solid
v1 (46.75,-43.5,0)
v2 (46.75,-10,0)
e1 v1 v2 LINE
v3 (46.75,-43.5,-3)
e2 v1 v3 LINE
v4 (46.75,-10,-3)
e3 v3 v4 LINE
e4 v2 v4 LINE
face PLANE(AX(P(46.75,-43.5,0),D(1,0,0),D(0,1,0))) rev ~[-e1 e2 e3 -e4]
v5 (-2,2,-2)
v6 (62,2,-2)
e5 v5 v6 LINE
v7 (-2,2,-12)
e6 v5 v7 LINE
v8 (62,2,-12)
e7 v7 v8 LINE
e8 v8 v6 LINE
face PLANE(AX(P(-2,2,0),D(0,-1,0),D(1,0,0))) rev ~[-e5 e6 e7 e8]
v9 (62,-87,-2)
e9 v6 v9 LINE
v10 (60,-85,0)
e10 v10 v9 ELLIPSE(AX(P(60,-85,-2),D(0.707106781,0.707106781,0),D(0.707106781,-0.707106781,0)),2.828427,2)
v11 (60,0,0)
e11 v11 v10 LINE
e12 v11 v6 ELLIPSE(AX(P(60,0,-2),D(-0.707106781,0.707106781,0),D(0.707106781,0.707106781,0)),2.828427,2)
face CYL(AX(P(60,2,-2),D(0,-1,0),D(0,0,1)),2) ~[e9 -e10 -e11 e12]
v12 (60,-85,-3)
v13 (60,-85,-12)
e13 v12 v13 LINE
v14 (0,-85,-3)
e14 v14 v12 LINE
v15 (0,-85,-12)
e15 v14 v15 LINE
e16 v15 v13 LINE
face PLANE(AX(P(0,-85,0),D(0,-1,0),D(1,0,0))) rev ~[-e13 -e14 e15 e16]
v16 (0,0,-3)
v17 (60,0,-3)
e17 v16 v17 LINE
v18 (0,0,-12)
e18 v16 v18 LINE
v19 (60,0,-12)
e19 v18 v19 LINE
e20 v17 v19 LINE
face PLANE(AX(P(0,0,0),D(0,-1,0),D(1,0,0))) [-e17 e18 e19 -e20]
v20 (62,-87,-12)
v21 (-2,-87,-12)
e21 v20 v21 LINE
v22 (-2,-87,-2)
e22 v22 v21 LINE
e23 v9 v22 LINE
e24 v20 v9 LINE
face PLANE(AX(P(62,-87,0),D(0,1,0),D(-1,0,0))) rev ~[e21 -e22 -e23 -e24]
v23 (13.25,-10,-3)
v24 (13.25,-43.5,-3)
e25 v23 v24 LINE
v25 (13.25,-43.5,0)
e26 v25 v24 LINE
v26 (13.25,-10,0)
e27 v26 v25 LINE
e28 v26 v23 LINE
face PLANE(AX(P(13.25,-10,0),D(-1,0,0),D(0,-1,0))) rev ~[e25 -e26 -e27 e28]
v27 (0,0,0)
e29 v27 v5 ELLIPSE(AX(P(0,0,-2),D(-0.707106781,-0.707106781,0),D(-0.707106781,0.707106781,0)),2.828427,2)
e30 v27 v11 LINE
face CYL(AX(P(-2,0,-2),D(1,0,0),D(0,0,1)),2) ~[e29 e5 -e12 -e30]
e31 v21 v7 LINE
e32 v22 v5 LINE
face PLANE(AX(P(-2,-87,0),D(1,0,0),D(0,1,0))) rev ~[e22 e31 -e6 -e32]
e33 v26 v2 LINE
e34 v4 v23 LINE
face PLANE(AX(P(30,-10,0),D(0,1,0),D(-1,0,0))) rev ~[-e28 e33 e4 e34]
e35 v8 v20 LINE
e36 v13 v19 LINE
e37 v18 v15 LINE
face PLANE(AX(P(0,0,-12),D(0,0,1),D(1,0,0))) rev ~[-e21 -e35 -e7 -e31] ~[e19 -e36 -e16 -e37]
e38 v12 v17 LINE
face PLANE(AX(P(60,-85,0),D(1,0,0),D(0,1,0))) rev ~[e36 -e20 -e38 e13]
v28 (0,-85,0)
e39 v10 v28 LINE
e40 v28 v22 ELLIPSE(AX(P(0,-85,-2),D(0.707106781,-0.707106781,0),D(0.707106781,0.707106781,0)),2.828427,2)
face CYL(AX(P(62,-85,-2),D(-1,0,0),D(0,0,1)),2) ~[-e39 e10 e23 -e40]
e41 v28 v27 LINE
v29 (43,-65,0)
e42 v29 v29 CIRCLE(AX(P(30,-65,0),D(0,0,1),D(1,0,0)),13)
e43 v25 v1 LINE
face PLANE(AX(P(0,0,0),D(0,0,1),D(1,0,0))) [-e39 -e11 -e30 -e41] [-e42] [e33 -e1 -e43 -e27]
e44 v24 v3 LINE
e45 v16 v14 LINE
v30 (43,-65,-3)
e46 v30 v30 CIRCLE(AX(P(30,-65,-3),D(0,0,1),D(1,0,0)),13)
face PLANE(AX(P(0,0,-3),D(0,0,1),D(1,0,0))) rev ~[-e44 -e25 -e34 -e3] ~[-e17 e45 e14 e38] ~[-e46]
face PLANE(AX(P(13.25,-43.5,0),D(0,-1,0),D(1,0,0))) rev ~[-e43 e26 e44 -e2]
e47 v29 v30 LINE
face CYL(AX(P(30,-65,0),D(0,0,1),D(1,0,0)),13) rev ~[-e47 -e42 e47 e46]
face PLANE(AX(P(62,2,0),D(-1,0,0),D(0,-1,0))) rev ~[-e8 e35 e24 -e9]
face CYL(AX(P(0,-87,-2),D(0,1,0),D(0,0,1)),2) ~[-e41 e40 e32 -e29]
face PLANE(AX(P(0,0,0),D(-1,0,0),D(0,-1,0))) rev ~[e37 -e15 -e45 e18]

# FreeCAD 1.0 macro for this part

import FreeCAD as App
import Part
import Sketcher
Q = App.Units.Quantity


def edges_at(feature, points):
    """Names of the edges that pass closest to the given points."""
    edges = feature.Shape.Edges
    near = lambda p: min(range(len(edges)), key=lambda i: edges[i].distToShape(Part.Vertex(*p))[0])
    return sorted({f"Edge{near(p) + 1}" for p in points})


def add_polygon(sketch, points):
    """Adds a closed chain of lines whose ends are joined by coincident constraints."""
    first, n = sketch.GeometryCount, len(points)
    for a, b in zip(points, points[1:] + points[:1]):
        sketch.addGeometry(Part.LineSegment(App.Vector(*a, 0), App.Vector(*b, 0)), False)
    for i in range(n):
        sketch.addConstraint(Sketcher.Constraint("Coincident", first + i, 2, first + (i + 1) % n, 1))

doc = App.newDocument("Part")
body = doc.addObject("PartDesign::Body", "Body")

sketch1 = body.newObject("Sketcher::SketchObject", "Sketch")
sketch1.AttachmentSupport = (doc.getObject("XY_Plane"), [""])
sketch1.MapMode = "FlatFace"
add_polygon(sketch1, [(-2, -87), (62, -87), (62, 2), (-2, 2)])
sketch1.addGeometry(Part.Circle(App.Vector(30, -65, 0), App.Vector(0, 0, 1), 13), False)
add_polygon(sketch1, [(13, -10), (47, -10), (47, -44), (13, -44)])
sketch1.addConstraint([
    Sketcher.Constraint("Horizontal", 0),
    Sketcher.Constraint("Vertical", 1),
    Sketcher.Constraint("Horizontal", 2),
    Sketcher.Constraint("Vertical", 3),
    Sketcher.Constraint("Horizontal", 5),
    Sketcher.Constraint("Vertical", 6),
    Sketcher.Constraint("Horizontal", 7),
    Sketcher.Constraint("Vertical", 8),
    Sketcher.Constraint("Equal", 7, 6),
    Sketcher.Constraint("Diameter", 4, Q("26 mm")),
    Sketcher.Constraint("DistanceX", 5, 1, 5, 2, Q("33.5 mm")),
    Sketcher.Constraint("DistanceX", 0, 1, 0, 2, Q("64 mm")),
    Sketcher.Constraint("DistanceY", 1, 1, 1, 2, Q("89 mm")),
    Sketcher.Constraint("DistanceX", 4, 3, 5, 2, Q("16.75 mm")),
    Sketcher.Constraint("DistanceX", -1, 1, 4, 3, Q("30 mm")),
    Sketcher.Constraint("DistanceY", 4, 3, -1, 1, Q("65 mm")),
    Sketcher.Constraint("DistanceX", -1, 1, 0, 2, Q("62 mm")),
    Sketcher.Constraint("DistanceY", 0, 2, -1, 1, Q("87 mm")),
    Sketcher.Constraint("DistanceY", 5, 2, -1, 1, Q("10 mm")),
])
pad1 = body.newObject("PartDesign::Pad", "Pad")
pad1.Profile = sketch1
pad1.Length = 3
pad1.Reversed = True

sketch2 = body.newObject("Sketcher::SketchObject", "Sketch001")
sketch2.AttachmentSupport = (doc.getObject("XY_Plane"), [""])
sketch2.MapMode = "FlatFace"
add_polygon(sketch2, [(-2, -87), (62, -87), (62, 2), (-2, 2)])
add_polygon(sketch2, [(0, -85), (0, 0), (60, 0), (60, -85)])
sketch2.addConstraint([
    Sketcher.Constraint("Horizontal", 0),
    Sketcher.Constraint("Vertical", 1),
    Sketcher.Constraint("Horizontal", 2),
    Sketcher.Constraint("Vertical", 3),
    Sketcher.Constraint("Vertical", 4),
    Sketcher.Constraint("Horizontal", 5),
    Sketcher.Constraint("Vertical", 6),
    Sketcher.Constraint("Horizontal", 7),
    Sketcher.Constraint("Coincident", 4, 2, -1, 1),
    Sketcher.Constraint("DistanceX", 5, 1, 5, 2, Q("60 mm")),
    Sketcher.Constraint("DistanceY", 4, 1, 4, 2, Q("85 mm")),
    Sketcher.Constraint("DistanceX", 0, 1, 0, 2, Q("64 mm")),
    Sketcher.Constraint("DistanceY", 1, 1, 1, 2, Q("89 mm")),
    Sketcher.Constraint("DistanceX", -1, 1, 0, 2, Q("62 mm")),
    Sketcher.Constraint("DistanceY", 0, 2, -1, 1, Q("87 mm")),
])
pad2 = body.newObject("PartDesign::Pad", "Pad001")
pad2.Profile = sketch2
pad2.Length = 12
pad2.Reversed = True
doc.recompute()

fillet = body.newObject("PartDesign::Fillet", "Fillet")
fillet.Base = (pad2, edges_at(pad2, [
    (-2, -42.5, 0),
    (30, 2, 0),
    (62, -42.5, 0),
    (30, -87, 0),
]))
fillet.Radius = 2

doc.recompute()
